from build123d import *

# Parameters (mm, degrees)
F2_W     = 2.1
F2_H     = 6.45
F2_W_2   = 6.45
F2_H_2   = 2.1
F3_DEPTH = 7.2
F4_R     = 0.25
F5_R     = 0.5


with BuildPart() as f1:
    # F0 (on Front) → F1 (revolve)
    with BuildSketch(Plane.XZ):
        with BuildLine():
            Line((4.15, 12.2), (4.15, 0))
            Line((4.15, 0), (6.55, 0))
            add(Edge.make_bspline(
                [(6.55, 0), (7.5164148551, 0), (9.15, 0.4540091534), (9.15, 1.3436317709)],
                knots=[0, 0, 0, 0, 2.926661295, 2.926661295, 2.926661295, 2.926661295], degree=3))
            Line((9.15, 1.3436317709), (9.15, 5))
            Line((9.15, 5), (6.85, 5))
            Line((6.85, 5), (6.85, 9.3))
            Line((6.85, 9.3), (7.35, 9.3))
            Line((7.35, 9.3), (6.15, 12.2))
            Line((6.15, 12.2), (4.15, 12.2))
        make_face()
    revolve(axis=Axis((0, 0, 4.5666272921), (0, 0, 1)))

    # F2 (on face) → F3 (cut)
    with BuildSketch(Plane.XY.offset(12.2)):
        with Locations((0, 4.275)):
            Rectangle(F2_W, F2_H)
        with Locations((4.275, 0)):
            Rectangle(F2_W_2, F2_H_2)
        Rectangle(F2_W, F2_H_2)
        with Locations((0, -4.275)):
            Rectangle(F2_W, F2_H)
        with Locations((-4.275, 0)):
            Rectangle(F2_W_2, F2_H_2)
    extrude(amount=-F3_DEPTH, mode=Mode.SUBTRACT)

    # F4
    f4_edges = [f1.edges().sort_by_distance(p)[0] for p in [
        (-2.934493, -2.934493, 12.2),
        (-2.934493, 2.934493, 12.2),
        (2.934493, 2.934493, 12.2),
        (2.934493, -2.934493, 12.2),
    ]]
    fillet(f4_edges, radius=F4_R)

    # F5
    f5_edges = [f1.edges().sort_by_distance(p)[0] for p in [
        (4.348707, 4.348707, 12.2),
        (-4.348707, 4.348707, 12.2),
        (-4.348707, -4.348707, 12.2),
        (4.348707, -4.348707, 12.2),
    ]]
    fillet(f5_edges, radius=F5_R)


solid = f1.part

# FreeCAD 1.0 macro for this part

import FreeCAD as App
import Part
import Sketcher
from FreeCAD import Vector
Q = App.Units.Quantity


def edges_at(feature, points):
    """Names of the edges that pass closest to the given points."""
    edges = feature.Shape.Edges
    near = lambda p: min(range(len(edges)), key=lambda i: edges[i].distToShape(Part.Vertex(*p))[0])
    return sorted({f"Edge{near(p) + 1}" for p in points})

doc = App.newDocument("Part")
body = doc.addObject("PartDesign::Body", "Body")

# Sketch on XZ plane
sketch1 = body.newObject("Sketcher::SketchObject", "Sketch")
sketch1.AttachmentSupport = (doc.getObject("XZ_Plane"), [""])
sketch1.MapMode = "FlatFace"
sketch1.addGeometry([
    Part.LineSegment(Vector(4.15, 12.2, 0), Vector(4.15, 0, 0)),  # 0
    Part.LineSegment(Vector(4.15, 0, 0), Vector(6.55, 0, 0)),  # 1
    Part.BSplineCurve([Vector(6.55, 0, 0), Vector(7.516415, 0, 0), Vector(9.15, 0.454009, 0), Vector(9.15, 1.343632, 0)], [4, 4], [0, 2.926661295], False, 3, [1, 1, 1, 1], False),  # 2
    Part.LineSegment(Vector(9.15, 1.343632, 0), Vector(9.15, 5, 0)),  # 3
    Part.LineSegment(Vector(9.15, 5, 0), Vector(6.85, 5, 0)),  # 4
    Part.LineSegment(Vector(6.85, 5, 0), Vector(6.85, 9.3, 0)),  # 5
    Part.LineSegment(Vector(6.85, 9.3, 0), Vector(7.35, 9.3, 0)),  # 6
    Part.LineSegment(Vector(7.35, 9.3, 0), Vector(6.15, 12.2, 0)),  # 7
    Part.LineSegment(Vector(6.15, 12.2, 0), Vector(4.15, 12.2, 0)),  # 8
], False)
sketch1.addConstraint([
    Sketcher.Constraint("Block", 2),
    Sketcher.Constraint("Coincident", 0, 2, 1, 1),
    Sketcher.Constraint("Coincident", 1, 2, 2, 1),
    Sketcher.Constraint("Coincident", 2, 2, 3, 1),
    Sketcher.Constraint("Coincident", 3, 2, 4, 1),
    Sketcher.Constraint("Coincident", 4, 2, 5, 1),
    Sketcher.Constraint("Coincident", 5, 2, 6, 1),
    Sketcher.Constraint("Coincident", 6, 2, 7, 1),
    Sketcher.Constraint("Coincident", 7, 2, 8, 1),
    Sketcher.Constraint("Coincident", 8, 2, 0, 1),
    Sketcher.Constraint("Vertical", 0),
    Sketcher.Constraint("Horizontal", 1),
    Sketcher.Constraint("Vertical", 3),
    Sketcher.Constraint("Horizontal", 4),
    Sketcher.Constraint("Vertical", 5),
    Sketcher.Constraint("Horizontal", 6),
    Sketcher.Constraint("Horizontal", 8),
    Sketcher.Constraint("DistanceX", 8, 2, 8, 1, Q("2 mm")),
    Sketcher.Constraint("DistanceX", 1, 1, 1, 2, Q("2.4 mm")),
    Sketcher.Constraint("DistanceX", 4, 2, 4, 1, Q("2.3 mm")),
    Sketcher.Constraint("DistanceX", 6, 1, 6, 2, Q("0.5 mm")),
    Sketcher.Constraint("DistanceY", 0, 2, 0, 1, Q("12.2 mm")),
    Sketcher.Constraint("DistanceY", 5, 1, 5, 2, Q("4.3 mm")),
    Sketcher.Constraint("DistanceY", -1, 1, 3, 2, Q("5 mm")),
])
revolution = body.newObject("PartDesign::Revolution", "Revolution")
revolution.Profile = sketch1
revolution.ReferenceAxis = (sketch1, ["V_Axis"])
revolution.Angle = 360

# Sketch on XY plane
sketch2 = body.newObject("Sketcher::SketchObject", "Sketch001")
sketch2.AttachmentSupport = (doc.getObject("XY_Plane"), [""])
sketch2.MapMode = "FlatFace"
sketch2.AttachmentOffset = App.Placement(Vector(0, 0, 12.2), App.Rotation())
sketch2.addGeometry([
    Part.LineSegment(Vector(-1.1, 7.5, 0), Vector(-1.1, 1.1, 0)),  # 0
    Part.LineSegment(Vector(-1.1, 1.1, 0), Vector(-7.5, 1.1, 0)),  # 1
    Part.LineSegment(Vector(-7.5, 1.1, 0), Vector(-7.5, -1.1, 0)),  # 2
    Part.LineSegment(Vector(-7.5, -1.1, 0), Vector(-1.1, -1.1, 0)),  # 3
    Part.LineSegment(Vector(-1.1, -1.1, 0), Vector(-1.1, -7.5, 0)),  # 4
    Part.LineSegment(Vector(-1.1, -7.5, 0), Vector(1.1, -7.5, 0)),  # 5
    Part.LineSegment(Vector(1.1, -7.5, 0), Vector(1.1, -1.1, 0)),  # 6
    Part.LineSegment(Vector(1.1, -1.1, 0), Vector(7.5, -1.1, 0)),  # 7
    Part.LineSegment(Vector(7.5, -1.1, 0), Vector(7.5, 1.1, 0)),  # 8
    Part.LineSegment(Vector(7.5, 1.1, 0), Vector(1.1, 1.1, 0)),  # 9
    Part.LineSegment(Vector(1.1, 1.1, 0), Vector(1.1, 7.5, 0)),  # 10
    Part.LineSegment(Vector(1.1, 7.5, 0), Vector(-1.1, 7.5, 0)),  # 11
], False)
sketch2.addConstraint([
    Sketcher.Constraint("Coincident", 0, 2, 1, 1),
    Sketcher.Constraint("Coincident", 1, 2, 2, 1),
    Sketcher.Constraint("Coincident", 2, 2, 3, 1),
    Sketcher.Constraint("Coincident", 3, 2, 4, 1),
    Sketcher.Constraint("Coincident", 4, 2, 5, 1),
    Sketcher.Constraint("Coincident", 5, 2, 6, 1),
    Sketcher.Constraint("Coincident", 6, 2, 7, 1),
    Sketcher.Constraint("Coincident", 7, 2, 8, 1),
    Sketcher.Constraint("Coincident", 8, 2, 9, 1),
    Sketcher.Constraint("Coincident", 9, 2, 10, 1),
    Sketcher.Constraint("Coincident", 10, 2, 11, 1),
    Sketcher.Constraint("Coincident", 11, 2, 0, 1),
    Sketcher.Constraint("Vertical", 0),
    Sketcher.Constraint("Horizontal", 1),
    Sketcher.Constraint("Vertical", 2),
    Sketcher.Constraint("Horizontal", 3),
    Sketcher.Constraint("Vertical", 4),
    Sketcher.Constraint("Horizontal", 5),
    Sketcher.Constraint("Vertical", 6),
    Sketcher.Constraint("Horizontal", 7),
    Sketcher.Constraint("Vertical", 8),
    Sketcher.Constraint("Horizontal", 9),
    Sketcher.Constraint("Vertical", 10),
    Sketcher.Constraint("Horizontal", 11),
    Sketcher.Constraint("Symmetric", 0, 2, 6, 2, -1, 1),
    Sketcher.Constraint("Symmetric", 2, 2, 8, 2, -1, 1),
    Sketcher.Constraint("Symmetric", 4, 2, 10, 2, -1, 1),
    Sketcher.Constraint("Symmetric", 3, 2, 6, 2, -2),
    Sketcher.Constraint("Equal", 9, 0),
    Sketcher.Constraint("Equal", 11, 2),
    Sketcher.Constraint("DistanceX", 5, 1, 5, 2, Q("2.1 mm")),
    Sketcher.Constraint("DistanceX", 1, 2, 1, 1, Q("6.45 mm")),
])
pocket1 = body.newObject("PartDesign::Pocket", "Pocket")
pocket1.Profile = sketch2
pocket1.Length = 7.2
doc.recompute()

fillet = body.newObject("PartDesign::Fillet", "Fillet")
fillet.Base = (pocket1, edges_at(pocket1, [
    (-2.934, -2.934, 12.2),
    (-2.934, 2.934, 12.2),
    (2.934, 2.934, 12.2),
    (2.934, -2.934, 12.2),
]))
fillet.Radius = 0.25
doc.recompute()

fillet2 = body.newObject("PartDesign::Fillet", "Fillet001")
fillet2.Base = (fillet, edges_at(fillet, [
    (4.349, 4.349, 12.2),
    (-4.349, 4.349, 12.2),
    (-4.349, -4.349, 12.2),
    (4.349, -4.349, 12.2),
]))
fillet2.Radius = 0.5

doc.recompute()
